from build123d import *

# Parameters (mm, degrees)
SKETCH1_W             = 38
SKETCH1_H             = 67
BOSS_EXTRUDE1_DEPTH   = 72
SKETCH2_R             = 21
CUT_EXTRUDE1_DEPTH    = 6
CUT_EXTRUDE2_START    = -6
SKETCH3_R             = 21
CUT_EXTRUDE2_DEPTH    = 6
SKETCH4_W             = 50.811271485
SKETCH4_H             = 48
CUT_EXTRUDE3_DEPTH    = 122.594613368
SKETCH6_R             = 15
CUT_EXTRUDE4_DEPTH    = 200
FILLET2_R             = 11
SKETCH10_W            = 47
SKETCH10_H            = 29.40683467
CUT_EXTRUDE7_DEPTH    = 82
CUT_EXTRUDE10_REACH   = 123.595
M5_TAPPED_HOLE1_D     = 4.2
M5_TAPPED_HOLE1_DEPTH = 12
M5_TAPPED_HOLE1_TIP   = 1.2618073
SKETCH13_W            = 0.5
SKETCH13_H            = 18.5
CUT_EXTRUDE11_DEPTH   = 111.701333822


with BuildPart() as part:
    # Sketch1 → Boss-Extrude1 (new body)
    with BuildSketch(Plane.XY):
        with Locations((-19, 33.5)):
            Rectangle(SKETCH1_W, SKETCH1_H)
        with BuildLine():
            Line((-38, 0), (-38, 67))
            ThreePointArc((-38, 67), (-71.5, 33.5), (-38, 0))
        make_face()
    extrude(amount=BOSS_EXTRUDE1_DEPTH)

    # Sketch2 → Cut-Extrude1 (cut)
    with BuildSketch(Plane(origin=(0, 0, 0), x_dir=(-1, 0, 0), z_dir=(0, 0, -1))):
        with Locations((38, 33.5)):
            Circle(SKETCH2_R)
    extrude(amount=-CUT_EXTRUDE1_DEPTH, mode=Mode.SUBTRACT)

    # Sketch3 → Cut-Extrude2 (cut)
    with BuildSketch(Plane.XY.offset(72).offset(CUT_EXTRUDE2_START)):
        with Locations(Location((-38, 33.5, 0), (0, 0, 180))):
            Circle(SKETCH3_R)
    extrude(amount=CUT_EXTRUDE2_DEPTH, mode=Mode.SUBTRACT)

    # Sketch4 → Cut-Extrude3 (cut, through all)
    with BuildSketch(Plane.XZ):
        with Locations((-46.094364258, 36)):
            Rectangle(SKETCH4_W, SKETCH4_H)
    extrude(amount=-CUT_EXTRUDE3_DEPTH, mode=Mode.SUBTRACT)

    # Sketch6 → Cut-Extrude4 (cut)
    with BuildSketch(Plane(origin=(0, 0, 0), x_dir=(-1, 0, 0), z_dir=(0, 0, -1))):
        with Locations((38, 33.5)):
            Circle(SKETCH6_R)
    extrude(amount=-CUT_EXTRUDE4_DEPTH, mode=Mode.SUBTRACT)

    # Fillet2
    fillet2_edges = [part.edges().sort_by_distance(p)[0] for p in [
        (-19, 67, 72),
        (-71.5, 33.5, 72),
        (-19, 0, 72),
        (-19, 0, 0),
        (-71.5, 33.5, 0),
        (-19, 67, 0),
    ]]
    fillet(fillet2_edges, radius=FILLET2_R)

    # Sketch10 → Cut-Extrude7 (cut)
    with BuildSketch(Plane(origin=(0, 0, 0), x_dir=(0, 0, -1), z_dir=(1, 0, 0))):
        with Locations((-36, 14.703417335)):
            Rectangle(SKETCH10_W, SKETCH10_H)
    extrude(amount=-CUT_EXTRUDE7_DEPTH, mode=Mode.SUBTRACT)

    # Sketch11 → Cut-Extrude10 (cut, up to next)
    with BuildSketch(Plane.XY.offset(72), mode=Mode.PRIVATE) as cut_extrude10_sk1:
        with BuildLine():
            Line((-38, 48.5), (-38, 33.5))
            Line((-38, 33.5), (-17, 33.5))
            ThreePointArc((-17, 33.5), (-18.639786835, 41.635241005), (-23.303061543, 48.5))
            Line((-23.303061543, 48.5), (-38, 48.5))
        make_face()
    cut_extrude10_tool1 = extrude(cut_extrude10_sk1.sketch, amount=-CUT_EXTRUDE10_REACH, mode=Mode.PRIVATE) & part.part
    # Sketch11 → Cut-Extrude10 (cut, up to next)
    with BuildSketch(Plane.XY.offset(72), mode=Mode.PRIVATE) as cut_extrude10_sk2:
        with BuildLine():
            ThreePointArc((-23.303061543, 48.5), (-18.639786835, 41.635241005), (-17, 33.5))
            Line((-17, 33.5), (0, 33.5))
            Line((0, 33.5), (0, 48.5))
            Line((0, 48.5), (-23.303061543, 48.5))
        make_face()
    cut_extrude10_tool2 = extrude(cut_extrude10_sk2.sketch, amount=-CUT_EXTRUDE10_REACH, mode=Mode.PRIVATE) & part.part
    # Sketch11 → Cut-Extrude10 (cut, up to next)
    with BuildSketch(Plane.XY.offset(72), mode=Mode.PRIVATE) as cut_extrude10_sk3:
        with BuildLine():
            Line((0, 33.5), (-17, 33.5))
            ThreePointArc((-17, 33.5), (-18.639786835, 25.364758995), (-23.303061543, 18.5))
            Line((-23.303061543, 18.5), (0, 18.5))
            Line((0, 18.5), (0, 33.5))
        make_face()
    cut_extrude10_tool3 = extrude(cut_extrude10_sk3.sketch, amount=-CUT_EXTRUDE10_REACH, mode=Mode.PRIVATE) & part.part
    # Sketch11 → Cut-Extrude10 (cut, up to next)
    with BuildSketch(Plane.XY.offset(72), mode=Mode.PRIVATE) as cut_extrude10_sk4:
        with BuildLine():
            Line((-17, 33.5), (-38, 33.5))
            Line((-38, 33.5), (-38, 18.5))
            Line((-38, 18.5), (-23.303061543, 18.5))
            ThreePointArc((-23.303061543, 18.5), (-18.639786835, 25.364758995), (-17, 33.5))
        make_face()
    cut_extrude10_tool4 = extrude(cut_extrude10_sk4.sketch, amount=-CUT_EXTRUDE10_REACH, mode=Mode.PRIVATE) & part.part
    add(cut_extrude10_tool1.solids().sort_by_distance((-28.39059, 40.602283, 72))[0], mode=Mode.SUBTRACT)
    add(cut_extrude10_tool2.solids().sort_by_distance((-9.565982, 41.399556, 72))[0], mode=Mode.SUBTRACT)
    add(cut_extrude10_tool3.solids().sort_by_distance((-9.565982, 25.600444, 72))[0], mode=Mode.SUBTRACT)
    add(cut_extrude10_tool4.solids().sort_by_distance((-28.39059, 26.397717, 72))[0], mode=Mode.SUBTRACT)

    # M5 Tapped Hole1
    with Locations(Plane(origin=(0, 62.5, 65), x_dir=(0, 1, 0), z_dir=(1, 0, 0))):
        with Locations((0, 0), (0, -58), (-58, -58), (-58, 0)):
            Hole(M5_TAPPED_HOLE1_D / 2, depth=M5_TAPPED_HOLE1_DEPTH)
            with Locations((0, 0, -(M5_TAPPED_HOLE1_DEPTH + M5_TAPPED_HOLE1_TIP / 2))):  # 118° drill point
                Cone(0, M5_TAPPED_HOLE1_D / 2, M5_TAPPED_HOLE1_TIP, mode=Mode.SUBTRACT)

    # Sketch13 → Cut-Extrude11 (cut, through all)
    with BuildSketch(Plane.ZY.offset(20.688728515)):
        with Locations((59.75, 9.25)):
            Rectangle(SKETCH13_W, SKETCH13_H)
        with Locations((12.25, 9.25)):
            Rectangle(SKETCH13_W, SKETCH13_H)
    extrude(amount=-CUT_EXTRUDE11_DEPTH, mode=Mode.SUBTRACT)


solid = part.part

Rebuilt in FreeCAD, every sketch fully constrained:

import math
import FreeCAD as App
import Part
import Sketcher
Q = App.Units.Quantity


def edges_at(feature, points):
    """Names of the edges that pass closest to the given points."""
    edges = feature.Shape.Edges
    near = lambda p: min(range(len(edges)), key=lambda i: edges[i].distToShape(Part.Vertex(*p))[0])
    return sorted({f"Edge{near(p) + 1}" for p in points})

doc = App.newDocument("Part")
body = doc.addObject("PartDesign::Body", "Body")

# Sketch on XY plane
sketch1 = doc.addObject("Sketcher::SketchObject", "Sketch")
body.addObject(sketch1)
sketch1.AttachmentSupport = (doc.XY_Plane, [""])
sketch1.MapMode = "FlatFace"
sketch1.addGeometry([
    Part.LineSegment(App.Vector(-38, 0, 0), App.Vector(0, 0, 0)),
    Part.LineSegment(App.Vector(0, 0, 0), App.Vector(0, 67, 0)),
    Part.LineSegment(App.Vector(0, 67, 0), App.Vector(-38, 67, 0)),
    Part.ArcOfCircle(Part.Circle(App.Vector(-38, 34, 0), App.Vector(0, 0, 1), 34), math.radians(90), math.radians(270)),
], False)
sketch1.addConstraint([
    Sketcher.Constraint("Coincident", 0, 2, 1, 1),
    Sketcher.Constraint("Coincident", 1, 2, 2, 1),
    Sketcher.Constraint("Tangent", 2, 2, 3, 1),
    Sketcher.Constraint("Tangent", 3, 2, 0, 1),
    Sketcher.Constraint("Horizontal", 0),
    Sketcher.Constraint("Vertical", 1),
    Sketcher.Constraint("Horizontal", 2),
    Sketcher.Constraint("Coincident", 0, 2, -1, 1),
    Sketcher.Constraint("Radius", 3, Q("33.5 mm")),
    Sketcher.Constraint("DistanceX", 0, 1, 0, 2, Q("38 mm")),
])
pad1 = doc.addObject("PartDesign::Pad", "Pad")
body.addObject(pad1)
pad1.Profile = sketch1
pad1.Length = 72

# Sketch on XY plane
sketch2 = doc.addObject("Sketcher::SketchObject", "Sketch001")
body.addObject(sketch2)
sketch2.AttachmentSupport = (doc.XY_Plane, [""])
sketch2.MapMode = "FlatFace"
sketch2.addGeometry(Part.Circle(App.Vector(-38, 34, 0), App.Vector(0, 0, 1), 21), False)
sketch2.addConstraint([
    Sketcher.Constraint("Diameter", 0, Q("42 mm")),
    Sketcher.Constraint("DistanceX", 0, 3, -1, 1, Q("38 mm")),
    Sketcher.Constraint("DistanceY", -1, 1, 0, 3, Q("33.5 mm")),
])
pocket1 = doc.addObject("PartDesign::Pocket", "Pocket")
body.addObject(pocket1)
pocket1.Profile = sketch2
pocket1.Length = 6
pocket1.Reversed = True

# Sketch on XY plane
sketch3 = doc.addObject("Sketcher::SketchObject", "Sketch002")
body.addObject(sketch3)
sketch3.AttachmentSupport = (doc.XY_Plane, [""])
sketch3.MapMode = "FlatFace"
sketch3.AttachmentOffset = App.Placement(App.Vector(0, 0, 66), App.Rotation())
sketch3.addGeometry(Part.Circle(App.Vector(-38, 34, 0), App.Vector(0, 0, 1), 21), False)
sketch3.addConstraint([
    Sketcher.Constraint("Diameter", 0, Q("42 mm")),
    Sketcher.Constraint("DistanceX", 0, 3, -1, 1, Q("38 mm")),
    Sketcher.Constraint("DistanceY", -1, 1, 0, 3, Q("33.5 mm")),
])
pocket2 = doc.addObject("PartDesign::Pocket", "Pocket001")
body.addObject(pocket2)
pocket2.Profile = sketch3
pocket2.Length = 6
pocket2.Reversed = True

# Sketch on XZ plane
sketch4 = doc.addObject("Sketcher::SketchObject", "Sketch003")
body.addObject(sketch4)
sketch4.AttachmentSupport = (doc.XZ_Plane, [""])
sketch4.MapMode = "FlatFace"
sketch4.addGeometry([
    Part.LineSegment(App.Vector(-72, 60, 0), App.Vector(-72, 12, 0)),
    Part.LineSegment(App.Vector(-72, 12, 0), App.Vector(-21, 12, 0)),
    Part.LineSegment(App.Vector(-21, 12, 0), App.Vector(-21, 60, 0)),
    Part.LineSegment(App.Vector(-21, 60, 0), App.Vector(-72, 60, 0)),
], False)
sketch4.addConstraint([
    Sketcher.Constraint("Coincident", 0, 2, 1, 1),
    Sketcher.Constraint("Coincident", 1, 2, 2, 1),
    Sketcher.Constraint("Coincident", 2, 2, 3, 1),
    Sketcher.Constraint("Coincident", 3, 2, 0, 1),
    Sketcher.Constraint("Vertical", 0),
    Sketcher.Constraint("Horizontal", 1),
    Sketcher.Constraint("Vertical", 2),
    Sketcher.Constraint("Horizontal", 3),
    Sketcher.Constraint("DistanceY", 0, 2, 0, 1, Q("48 mm")),
    Sketcher.Constraint("DistanceY", -1, 1, 0, 2, Q("12 mm")),
    Sketcher.Constraint("DistanceX", 0, 2, -1, 1, Q("71.5 mm")),
    Sketcher.Constraint("DistanceX", 1, 1, 1, 2, Q("50.811271 mm")),
])
pocket3 = doc.addObject("PartDesign::Pocket", "Pocket002")
body.addObject(pocket3)
pocket3.Profile = sketch4
pocket3.Type = "ThroughAll"

# Sketch on XY plane
sketch5 = doc.addObject("Sketcher::SketchObject", "Sketch004")
body.addObject(sketch5)
sketch5.AttachmentSupport = (doc.XY_Plane, [""])
sketch5.MapMode = "FlatFace"
sketch5.addGeometry(Part.Circle(App.Vector(-38, 34, 0), App.Vector(0, 0, 1), 15), False)
sketch5.addConstraint([
    Sketcher.Constraint("Diameter", 0, Q("30 mm")),
    Sketcher.Constraint("DistanceX", 0, 3, -1, 1, Q("38 mm")),
    Sketcher.Constraint("DistanceY", -1, 1, 0, 3, Q("33.5 mm")),
])
pocket4 = doc.addObject("PartDesign::Pocket", "Pocket003")
body.addObject(pocket4)
pocket4.Profile = sketch5
pocket4.Length = 200
pocket4.Reversed = True
doc.recompute()

fillet = doc.addObject("PartDesign::Fillet", "Fillet")
body.addObject(fillet)
fillet.Base = (pocket4, edges_at(pocket4, [
    (-19, 67, 72),
    (-71.5, 33.5, 72),
    (-19, 0, 72),
    (-19, 0, 0),
    (-71.5, 33.5, 0),
    (-19, 67, 0),
]))
fillet.Radius = 11

# Sketch on YZ plane
sketch6 = doc.addObject("Sketcher::SketchObject", "Sketch005")
body.addObject(sketch6)
sketch6.AttachmentSupport = (doc.YZ_Plane, [""])
sketch6.MapMode = "FlatFace"
sketch6.addGeometry([
    Part.LineSegment(App.Vector(29, 60, 0), App.Vector(0, 60, 0)),
    Part.LineSegment(App.Vector(0, 60, 0), App.Vector(0, 12, 0)),
    Part.LineSegment(App.Vector(0, 12, 0), App.Vector(29, 12, 0)),
    Part.LineSegment(App.Vector(29, 12, 0), App.Vector(29, 60, 0)),
], False)
sketch6.addConstraint([
    Sketcher.Constraint("Coincident", 0, 2, 1, 1),
    Sketcher.Constraint("Coincident", 1, 2, 2, 1),
    Sketcher.Constraint("Coincident", 2, 2, 3, 1),
    Sketcher.Constraint("Coincident", 3, 2, 0, 1),
    Sketcher.Constraint("Horizontal", 0),
    Sketcher.Constraint("Vertical", 1),
    Sketcher.Constraint("Horizontal", 2),
    Sketcher.Constraint("Vertical", 3),
    Sketcher.Constraint("PointOnObject", 0, 2, -2),
    Sketcher.Constraint("DistanceY", 1, 2, 1, 1, Q("47 mm")),
    Sketcher.Constraint("DistanceY", -1, 1, 0, 2, Q("59.5 mm")),
    Sketcher.Constraint("DistanceX", 0, 2, 0, 1, Q("29.406835 mm")),
])
pocket5 = doc.addObject("PartDesign::Pocket", "Pocket004")
body.addObject(pocket5)
pocket5.Profile = sketch6
pocket5.Length = 82

# Sketch on XY plane
sketch7 = doc.addObject("Sketcher::SketchObject", "Sketch006")
body.addObject(sketch7)
sketch7.AttachmentSupport = (doc.XY_Plane, [""])
sketch7.MapMode = "FlatFace"
sketch7.AttachmentOffset = App.Placement(App.Vector(0, 0, 72), App.Rotation())
sketch7.addGeometry([
    Part.LineSegment(App.Vector(-38, 48, 0), App.Vector(-38, 34, 0)),
    Part.LineSegment(App.Vector(-38, 34, 0), App.Vector(-17, 34, 0)),
    Part.ArcOfCircle(Part.Circle(App.Vector(-38, 34, 0), App.Vector(0, 0, 1), 21), math.radians(0), math.radians(46)),
    Part.LineSegment(App.Vector(-23, 48, 0), App.Vector(-38, 48, 0)),
], False)
sketch7.addConstraint([
    Sketcher.Constraint("Coincident", 0, 2, 1, 1),
    Sketcher.Constraint("Coincident", 1, 2, 2, 1),
    Sketcher.Constraint("Coincident", 2, 2, 3, 1),
    Sketcher.Constraint("Coincident", 3, 2, 0, 1),
    Sketcher.Constraint("Vertical", 0),
    Sketcher.Constraint("Horizontal", 1),
    Sketcher.Constraint("Horizontal", 3),
    Sketcher.Constraint("Coincident", 0, 2, 2, 3),
    Sketcher.Constraint("Radius", 2, Q("21 mm")),
    Sketcher.Constraint("DistanceY", 0, 2, 0, 1, Q("15 mm")),
    Sketcher.Constraint("DistanceX", 2, 3, -1, 1, Q("38 mm")),
    Sketcher.Constraint("DistanceY", -1, 1, 2, 3, Q("33.5 mm")),
])
pocket6 = doc.addObject("PartDesign::Pocket", "Pocket005")
body.addObject(pocket6)
pocket6.Profile = sketch7
pocket6.Length = 66

# Sketch on XY plane
sketch8 = doc.addObject("Sketcher::SketchObject", "Sketch007")
body.addObject(sketch8)
sketch8.AttachmentSupport = (doc.XY_Plane, [""])
sketch8.MapMode = "FlatFace"
sketch8.AttachmentOffset = App.Placement(App.Vector(0, 0, 72), App.Rotation())
sketch8.addGeometry([
    Part.ArcOfCircle(Part.Circle(App.Vector(-38, 34, 0), App.Vector(0, 0, 1), 21), math.radians(0), math.radians(46)),
    Part.LineSegment(App.Vector(-17, 34, 0), App.Vector(0, 34, 0)),
    Part.LineSegment(App.Vector(0, 34, 0), App.Vector(0, 48, 0)),
    Part.LineSegment(App.Vector(0, 48, 0), App.Vector(-23, 48, 0)),
], False)
sketch8.addConstraint([
    Sketcher.Constraint("Coincident", 0, 1, 1, 1),
    Sketcher.Constraint("Coincident", 1, 2, 2, 1),
    Sketcher.Constraint("Coincident", 2, 2, 3, 1),
    Sketcher.Constraint("Coincident", 3, 2, 0, 2),
    Sketcher.Constraint("Horizontal", 1),
    Sketcher.Constraint("Vertical", 2),
    Sketcher.Constraint("Horizontal", 3),
    Sketcher.Constraint("PointOnObject", 1, 2, -2),
    Sketcher.Constraint("Radius", 0, Q("21 mm")),
    Sketcher.Constraint("DistanceX", 1, 1, 1, 2, Q("17 mm")),
    Sketcher.Constraint("DistanceY", 2, 1, 2, 2, Q("15 mm")),
    Sketcher.Constraint("DistanceY", 0, 3, 2, 2, Q("15 mm")),
    Sketcher.Constraint("DistanceY", -1, 1, 0, 3, Q("33.5 mm")),
])
pocket7 = doc.addObject("PartDesign::Pocket", "Pocket006")
body.addObject(pocket7)
pocket7.Profile = sketch8
pocket7.Type = "UpToFirst"

# Sketch on XY plane
sketch9 = doc.addObject("Sketcher::SketchObject", "Sketch008")
body.addObject(sketch9)
sketch9.AttachmentSupport = (doc.XY_Plane, [""])
sketch9.MapMode = "FlatFace"
sketch9.AttachmentOffset = App.Placement(App.Vector(0, 0, 72), App.Rotation())
sketch9.addGeometry([
    Part.LineSegment(App.Vector(0, 34, 0), App.Vector(-17, 34, 0)),
    Part.ArcOfCircle(Part.Circle(App.Vector(-38, 34, 0), App.Vector(0, 0, 1), 21), math.radians(-46), math.radians(0)),
    Part.LineSegment(App.Vector(-23, 18, 0), App.Vector(0, 18, 0)),
    Part.LineSegment(App.Vector(0, 18, 0), App.Vector(0, 34, 0)),
], False)
sketch9.addConstraint([
    Sketcher.Constraint("Coincident", 0, 2, 1, 2),
    Sketcher.Constraint("Coincident", 1, 1, 2, 1),
    Sketcher.Constraint("Coincident", 2, 2, 3, 1),
    Sketcher.Constraint("Coincident", 3, 2, 0, 1),
    Sketcher.Constraint("Horizontal", 0),
    Sketcher.Constraint("Horizontal", 2),
    Sketcher.Constraint("Vertical", 3),
    Sketcher.Constraint("PointOnObject", 2, 2, -2),
    Sketcher.Constraint("Horizontal", 1, 3, 0, 2),
    Sketcher.Constraint("Radius", 1, Q("21 mm")),
    Sketcher.Constraint("DistanceX", 0, 2, 0, 1, Q("17 mm")),
    Sketcher.Constraint("DistanceY", 3, 1, 3, 2, Q("15 mm")),
    Sketcher.Constraint("DistanceY", -1, 1, 1, 3, Q("33.5 mm")),
])
pocket8 = doc.addObject("PartDesign::Pocket", "Pocket007")
body.addObject(pocket8)
pocket8.Profile = sketch9
pocket8.Length = 72

# Sketch on XY plane
sketch10 = doc.addObject("Sketcher::SketchObject", "Sketch009")
body.addObject(sketch10)
sketch10.AttachmentSupport = (doc.XY_Plane, [""])
sketch10.MapMode = "FlatFace"
sketch10.AttachmentOffset = App.Placement(App.Vector(0, 0, 72), App.Rotation())
sketch10.addGeometry([
    Part.LineSegment(App.Vector(-17, 34, 0), App.Vector(-38, 34, 0)),
    Part.LineSegment(App.Vector(-38, 34, 0), App.Vector(-38, 18, 0)),
    Part.LineSegment(App.Vector(-38, 18, 0), App.Vector(-23, 18, 0)),
    Part.ArcOfCircle(Part.Circle(App.Vector(-38, 34, 0), App.Vector(0, 0, 1), 21), math.radians(-46), math.radians(0)),
], False)
sketch10.addConstraint([
    Sketcher.Constraint("Coincident", 0, 2, 1, 1),
    Sketcher.Constraint("Coincident", 1, 2, 2, 1),
    Sketcher.Constraint("Coincident", 2, 2, 3, 1),
    Sketcher.Constraint("Coincident", 3, 2, 0, 1),
    Sketcher.Constraint("Horizontal", 0),
    Sketcher.Constraint("Vertical", 1),
    Sketcher.Constraint("Horizontal", 2),
    Sketcher.Constraint("Coincident", 0, 2, 3, 3),
    Sketcher.Constraint("Radius", 3, Q("21 mm")),
    Sketcher.Constraint("DistanceY", 1, 2, 1, 1, Q("15 mm")),
    Sketcher.Constraint("DistanceX", 3, 3, -1, 1, Q("38 mm")),
    Sketcher.Constraint("DistanceY", -1, 1, 3, 3, Q("33.5 mm")),
])
pocket9 = doc.addObject("PartDesign::Pocket", "Pocket008")
body.addObject(pocket9)
pocket9.Profile = sketch10
pocket9.Length = 66

# Sketch on YZ plane
sketch11 = doc.addObject("Sketcher::SketchObject", "Sketch010")
body.addObject(sketch11)
sketch11.AttachmentSupport = (doc.YZ_Plane, [""])
sketch11.MapMode = "FlatFace"
sketch11.addGeometry([
    Part.Circle(App.Vector(62.5, 65, 0), App.Vector(0, 0, 1), 2.1),
    Part.Circle(App.Vector(62.5, 7, 0), App.Vector(0, 0, 1), 2.1),
    Part.Circle(App.Vector(4.5, 7, 0), App.Vector(0, 0, 1), 2.1),
    Part.Circle(App.Vector(4.5, 65, 0), App.Vector(0, 0, 1), 2.1),
], False)
sketch11.addConstraint([
    Sketcher.Constraint("Equal", 0, 1),
    Sketcher.Constraint("Equal", 1, 2),
    Sketcher.Constraint("Equal", 2, 3),
    Sketcher.Constraint("Horizontal", 1, 3, 2, 3),
    Sketcher.Constraint("Horizontal", 0, 3, 3, 3),
    Sketcher.Constraint("Vertical", 0, 3, 1, 3),
    Sketcher.Constraint("Vertical", 2, 3, 3, 3),
    Sketcher.Constraint("Diameter", 0, Q("4.2 mm")),
    Sketcher.Constraint("DistanceY", -1, 1, 0, 3, Q("65 mm")),
    Sketcher.Constraint("DistanceY", -1, 1, 1, 3, Q("7 mm")),
    Sketcher.Constraint("DistanceX", 2, 3, 1, 3, Q("58 mm")),
    Sketcher.Constraint("DistanceX", -1, 1, 0, 3, Q("62.5 mm")),
])
doc.recompute()
hole = doc.addObject("PartDesign::Hole", "Hole")
body.addObject(hole)
hole.Profile = sketch11
hole.ThreadType = "None"
hole.Diameter = 4.2
hole.DepthType = "Dimension"
hole.Depth = 12
hole.DrillPoint = "Angled"
hole.DrillPointAngle = 118

# Sketch on YZ plane
sketch12 = doc.addObject("Sketcher::SketchObject", "Sketch011")
body.addObject(sketch12)
sketch12.AttachmentSupport = (doc.YZ_Plane, [""])
sketch12.MapMode = "FlatFace"
sketch12.AttachmentOffset = App.Placement(App.Vector(0, 0, -20.688729), App.Rotation())
sketch12.addGeometry([
    Part.LineSegment(App.Vector(18.5, 59.5, 0), App.Vector(0, 59.5, 0)),  # 0
    Part.LineSegment(App.Vector(0, 59.5, 0), App.Vector(0, 60, 0)),  # 1
    Part.LineSegment(App.Vector(0, 60, 0), App.Vector(18.5, 60, 0)),  # 2
    Part.LineSegment(App.Vector(18.5, 60, 0), App.Vector(18.5, 59.5, 0)),  # 3
    Part.LineSegment(App.Vector(18.5, 12, 0), App.Vector(0, 12, 0)),  # 4
    Part.LineSegment(App.Vector(0, 12, 0), App.Vector(0, 12.5, 0)),  # 5
    Part.LineSegment(App.Vector(0, 12.5, 0), App.Vector(18.5, 12.5, 0)),  # 6
    Part.LineSegment(App.Vector(18.5, 12.5, 0), App.Vector(18.5, 12, 0)),  # 7
], False)
sketch12.addConstraint([
    Sketcher.Constraint("Coincident", 0, 2, 1, 1),
    Sketcher.Constraint("Coincident", 1, 2, 2, 1),
    Sketcher.Constraint("Coincident", 2, 2, 3, 1),
    Sketcher.Constraint("Coincident", 3, 2, 0, 1),
    Sketcher.Constraint("Coincident", 4, 2, 5, 1),
    Sketcher.Constraint("Coincident", 5, 2, 6, 1),
    Sketcher.Constraint("Coincident", 6, 2, 7, 1),
    Sketcher.Constraint("Coincident", 7, 2, 4, 1),
    Sketcher.Constraint("Horizontal", 0),
    Sketcher.Constraint("Vertical", 1),
    Sketcher.Constraint("Horizontal", 2),
    Sketcher.Constraint("Vertical", 3),
    Sketcher.Constraint("Horizontal", 4),
    Sketcher.Constraint("Vertical", 5),
    Sketcher.Constraint("Horizontal", 6),
    Sketcher.Constraint("Vertical", 7),
    Sketcher.Constraint("PointOnObject", 0, 2, -2),
    Sketcher.Constraint("PointOnObject", 4, 2, -2),
    Sketcher.Constraint("Vertical", 3, 2, 6, 2),
    Sketcher.Constraint("Equal", 3, 5),
    Sketcher.Constraint("DistanceX", 0, 2, 0, 1, Q("18.5 mm")),
    Sketcher.Constraint("DistanceY", 1, 1, 1, 2, Q("0.5 mm")),
    Sketcher.Constraint("DistanceY", -1, 1, 1, 2, Q("60 mm")),
    Sketcher.Constraint("DistanceY", -1, 1, 4, 2, Q("12 mm")),
])
pocket10 = doc.addObject("PartDesign::Pocket", "Pocket009")
body.addObject(pocket10)
pocket10.Profile = sketch12
pocket10.Type = "ThroughAll"
pocket10.Reversed = True

doc.recompute()
